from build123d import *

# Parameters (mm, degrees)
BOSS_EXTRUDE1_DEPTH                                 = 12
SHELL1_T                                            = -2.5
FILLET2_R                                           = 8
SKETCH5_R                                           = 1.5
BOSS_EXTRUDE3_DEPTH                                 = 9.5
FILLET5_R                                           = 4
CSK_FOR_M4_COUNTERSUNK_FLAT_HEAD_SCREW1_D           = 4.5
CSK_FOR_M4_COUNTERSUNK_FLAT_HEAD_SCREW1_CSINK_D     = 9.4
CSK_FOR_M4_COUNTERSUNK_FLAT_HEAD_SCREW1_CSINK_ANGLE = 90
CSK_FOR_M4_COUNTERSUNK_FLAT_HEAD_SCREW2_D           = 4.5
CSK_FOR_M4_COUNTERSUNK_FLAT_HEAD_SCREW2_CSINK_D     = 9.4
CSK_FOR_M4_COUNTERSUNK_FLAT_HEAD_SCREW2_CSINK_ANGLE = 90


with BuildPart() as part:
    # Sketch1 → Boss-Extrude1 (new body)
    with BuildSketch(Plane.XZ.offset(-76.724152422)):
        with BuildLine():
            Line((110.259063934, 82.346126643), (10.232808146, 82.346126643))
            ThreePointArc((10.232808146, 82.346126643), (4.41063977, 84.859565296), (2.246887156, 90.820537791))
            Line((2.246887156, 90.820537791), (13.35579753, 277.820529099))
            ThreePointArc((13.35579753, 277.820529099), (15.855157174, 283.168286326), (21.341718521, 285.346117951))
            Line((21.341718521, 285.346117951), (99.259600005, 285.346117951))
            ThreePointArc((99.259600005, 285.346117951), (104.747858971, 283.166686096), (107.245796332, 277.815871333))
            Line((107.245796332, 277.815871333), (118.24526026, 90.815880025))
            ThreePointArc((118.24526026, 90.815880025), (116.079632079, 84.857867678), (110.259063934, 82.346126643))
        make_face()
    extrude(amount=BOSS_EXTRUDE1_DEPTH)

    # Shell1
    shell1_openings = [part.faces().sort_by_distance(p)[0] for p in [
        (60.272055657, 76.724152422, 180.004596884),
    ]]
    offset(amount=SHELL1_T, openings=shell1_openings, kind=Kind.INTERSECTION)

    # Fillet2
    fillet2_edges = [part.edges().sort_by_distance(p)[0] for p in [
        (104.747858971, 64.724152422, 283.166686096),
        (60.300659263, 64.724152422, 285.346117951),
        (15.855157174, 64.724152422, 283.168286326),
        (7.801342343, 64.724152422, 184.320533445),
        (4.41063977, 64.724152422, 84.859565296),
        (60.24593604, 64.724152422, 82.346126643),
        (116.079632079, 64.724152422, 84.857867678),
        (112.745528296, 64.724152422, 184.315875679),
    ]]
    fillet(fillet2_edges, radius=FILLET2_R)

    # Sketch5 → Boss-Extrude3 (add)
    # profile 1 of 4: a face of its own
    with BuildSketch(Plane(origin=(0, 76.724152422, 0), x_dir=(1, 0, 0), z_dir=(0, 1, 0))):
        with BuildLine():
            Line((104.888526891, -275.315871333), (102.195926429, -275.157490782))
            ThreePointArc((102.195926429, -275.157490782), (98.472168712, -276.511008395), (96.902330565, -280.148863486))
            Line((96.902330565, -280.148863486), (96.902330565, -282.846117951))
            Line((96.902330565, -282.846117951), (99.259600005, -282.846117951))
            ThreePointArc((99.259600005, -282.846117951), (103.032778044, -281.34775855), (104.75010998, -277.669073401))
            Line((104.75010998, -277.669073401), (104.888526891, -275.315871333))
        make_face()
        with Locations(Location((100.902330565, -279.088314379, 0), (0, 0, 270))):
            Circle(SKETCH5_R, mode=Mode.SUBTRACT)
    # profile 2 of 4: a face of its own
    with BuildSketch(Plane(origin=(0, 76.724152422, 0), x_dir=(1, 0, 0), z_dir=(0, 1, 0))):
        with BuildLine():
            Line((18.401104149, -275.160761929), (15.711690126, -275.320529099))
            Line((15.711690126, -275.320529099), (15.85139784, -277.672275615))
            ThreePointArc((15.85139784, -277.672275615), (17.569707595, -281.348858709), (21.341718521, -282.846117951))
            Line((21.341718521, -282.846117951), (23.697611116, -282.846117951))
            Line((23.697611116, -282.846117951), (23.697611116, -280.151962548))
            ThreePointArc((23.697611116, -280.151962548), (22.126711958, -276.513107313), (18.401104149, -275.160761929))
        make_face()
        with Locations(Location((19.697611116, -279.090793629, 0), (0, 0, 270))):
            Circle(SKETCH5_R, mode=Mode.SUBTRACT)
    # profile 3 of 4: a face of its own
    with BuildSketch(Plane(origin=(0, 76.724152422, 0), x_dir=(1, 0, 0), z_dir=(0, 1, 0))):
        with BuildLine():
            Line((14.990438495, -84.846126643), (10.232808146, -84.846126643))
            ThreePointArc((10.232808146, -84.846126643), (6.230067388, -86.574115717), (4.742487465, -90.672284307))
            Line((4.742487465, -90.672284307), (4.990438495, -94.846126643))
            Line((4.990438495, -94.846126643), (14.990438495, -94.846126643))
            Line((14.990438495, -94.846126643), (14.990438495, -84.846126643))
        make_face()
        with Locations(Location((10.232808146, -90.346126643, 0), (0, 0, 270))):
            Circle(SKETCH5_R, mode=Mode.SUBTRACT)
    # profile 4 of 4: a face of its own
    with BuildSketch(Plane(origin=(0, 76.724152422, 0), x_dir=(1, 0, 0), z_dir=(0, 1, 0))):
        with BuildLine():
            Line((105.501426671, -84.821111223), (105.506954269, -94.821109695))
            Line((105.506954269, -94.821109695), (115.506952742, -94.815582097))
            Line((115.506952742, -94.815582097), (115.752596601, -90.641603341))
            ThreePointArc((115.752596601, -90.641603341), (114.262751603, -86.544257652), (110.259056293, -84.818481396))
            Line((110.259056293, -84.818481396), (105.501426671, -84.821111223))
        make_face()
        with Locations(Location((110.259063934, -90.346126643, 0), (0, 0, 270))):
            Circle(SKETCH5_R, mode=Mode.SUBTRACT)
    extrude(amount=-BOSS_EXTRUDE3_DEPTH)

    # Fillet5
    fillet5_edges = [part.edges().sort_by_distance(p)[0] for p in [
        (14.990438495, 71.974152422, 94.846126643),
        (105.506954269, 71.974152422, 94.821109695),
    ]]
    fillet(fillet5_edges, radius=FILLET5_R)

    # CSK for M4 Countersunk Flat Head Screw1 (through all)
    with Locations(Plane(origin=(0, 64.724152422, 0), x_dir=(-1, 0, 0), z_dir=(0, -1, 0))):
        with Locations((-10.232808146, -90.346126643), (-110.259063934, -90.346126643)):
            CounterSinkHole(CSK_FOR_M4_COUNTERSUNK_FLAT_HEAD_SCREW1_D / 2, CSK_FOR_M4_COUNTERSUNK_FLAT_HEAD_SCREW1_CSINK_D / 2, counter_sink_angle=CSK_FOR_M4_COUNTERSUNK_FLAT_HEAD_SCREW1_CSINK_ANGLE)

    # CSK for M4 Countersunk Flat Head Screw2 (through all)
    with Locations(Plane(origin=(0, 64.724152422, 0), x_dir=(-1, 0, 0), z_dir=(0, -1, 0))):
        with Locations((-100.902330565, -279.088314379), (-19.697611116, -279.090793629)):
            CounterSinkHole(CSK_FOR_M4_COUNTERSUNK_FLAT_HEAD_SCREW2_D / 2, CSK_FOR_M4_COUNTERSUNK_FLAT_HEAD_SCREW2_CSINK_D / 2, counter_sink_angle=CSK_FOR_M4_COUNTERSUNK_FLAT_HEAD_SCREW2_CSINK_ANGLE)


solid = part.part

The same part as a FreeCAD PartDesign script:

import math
import FreeCAD as App
import Part
import Sketcher
from FreeCAD import Vector
Q = App.Units.Quantity


def edges_at(feature, points):
    """Names of the edges that pass closest to the given points."""
    edges = feature.Shape.Edges
    near = lambda p: min(range(len(edges)), key=lambda i: edges[i].distToShape(Part.Vertex(*p))[0])
    return sorted({f"Edge{near(p) + 1}" for p in points})


def faces_at(feature, points):
    """Names of the faces that lie closest to the given points."""
    faces = feature.Shape.Faces
    near = lambda p: min(range(len(faces)), key=lambda i: faces[i].distToShape(Part.Vertex(*p))[0])
    return sorted({f"Face{near(p) + 1}" for p in points})

doc = App.newDocument("Part")
body = doc.addObject("PartDesign::Body", "Body")

# Sketch on XZ plane
sketch1 = body.newObject("Sketcher::SketchObject", "Sketch")
sketch1.AttachmentSupport = (doc.getObject("XZ_Plane"), [""])
sketch1.MapMode = "FlatFace"
sketch1.AttachmentOffset = App.Placement(Vector(0, 0, -76.724152), App.Rotation())
sketch1.addGeometry([
    Part.LineSegment(Vector(10, 82, 0), Vector(110, 82, 0)),  # 0
    Part.ArcOfCircle(Part.Circle(Vector(110, 90, 0), Vector(0, 0, 1), 8), math.radians(-90), math.radians(3)),  # 1
    Part.LineSegment(Vector(118, 91, 0), Vector(107, 278, 0)),  # 2
    Part.ArcOfCircle(Part.Circle(Vector(99, 277, 0), Vector(0, 0, 1), 8), math.radians(3), math.radians(90)),  # 3
    Part.LineSegment(Vector(99, 285, 0), Vector(21, 285, 0)),  # 4
    Part.ArcOfCircle(Part.Circle(Vector(21, 277, 0), Vector(0, 0, 1), 8), math.radians(90), math.radians(177)),  # 5
    Part.LineSegment(Vector(13, 278, 0), Vector(2, 91, 0)),  # 6
    Part.ArcOfCircle(Part.Circle(Vector(10, 90, 0), Vector(0, 0, 1), 8), math.radians(177), math.radians(270)),  # 7
], False)
sketch1.addConstraint([
    Sketcher.Constraint("Tangent", 0, 2, 1, 1),
    Sketcher.Constraint("Tangent", 1, 2, 2, 1),
    Sketcher.Constraint("Tangent", 2, 2, 3, 1),
    Sketcher.Constraint("Tangent", 3, 2, 4, 1),
    Sketcher.Constraint("Tangent", 4, 2, 5, 1),
    Sketcher.Constraint("Tangent", 5, 2, 6, 1),
    Sketcher.Constraint("Tangent", 6, 2, 7, 1),
    Sketcher.Constraint("Tangent", 7, 2, 0, 1),
    Sketcher.Constraint("Horizontal", 0),
    Sketcher.Constraint("Horizontal", 4),
    Sketcher.Constraint("Equal", 1, 3),
    Sketcher.Constraint("Equal", 3, 5),
    Sketcher.Constraint("Equal", 5, 7),
    Sketcher.Constraint("Radius", 1, Q("8 mm")),
    Sketcher.Constraint("DistanceX", 5, 2, 2, 2, Q("93.889999 mm")),
    Sketcher.Constraint("DistanceX", -1, 1, 3, 3, Q("99.2596 mm")),
    Sketcher.Constraint("Distance", 2, Q("187.32321 mm")),
    Sketcher.Constraint("Distance", 6, Q("187.329668 mm")),
    Sketcher.Constraint("DistanceX", 0, 1, 0, 2, Q("100.026256 mm")),
    Sketcher.Constraint("DistanceY", -1, 1, 1, 2, Q("90.81588 mm")),
])
pad1 = body.newObject("PartDesign::Pad", "Pad")
pad1.Profile = sketch1
pad1.Length = 12
doc.recompute()

thickness = body.newObject("PartDesign::Thickness", "Thickness")
thickness.Base = (pad1, faces_at(pad1, [(60.246, 76.724, 183.846)]))
thickness.Value = 2.5
thickness.Reversed = True
thickness.Join = "Intersection"
doc.recompute()

fillet = body.newObject("PartDesign::Fillet", "Fillet")
fillet.Base = (thickness, edges_at(thickness, [
    (104.748, 64.724, 283.167),
    (60.301, 64.724, 285.346),
    (15.855, 64.724, 283.168),
    (7.801, 64.724, 184.321),
    (4.411, 64.724, 84.86),
    (60.246, 64.724, 82.346),
    (116.08, 64.724, 84.858),
    (112.746, 64.724, 184.316),
]))
fillet.Radius = 8

# Sketch on XZ plane
sketch2 = body.newObject("Sketcher::SketchObject", "Sketch001")
sketch2.AttachmentSupport = (doc.getObject("XZ_Plane"), [""])
sketch2.MapMode = "FlatFace"
sketch2.AttachmentOffset = App.Placement(Vector(0, 0, -76.724152), App.Rotation())
sketch2.addGeometry([
    Part.LineSegment(Vector(104.9, 275.3, 0), Vector(102.2, 275.2, 0)),  # 0
    Part.ArcOfCircle(Part.Circle(Vector(101.9, 280.1, 0), Vector(0, 0, 1), 5), math.radians(180), math.radians(273)),  # 1
    Part.LineSegment(Vector(96.9, 280.1, 0), Vector(96.9, 282.8, 0)),  # 2
    Part.LineSegment(Vector(96.9, 282.8, 0), Vector(99.3, 282.8, 0)),  # 3
    Part.ArcOfCircle(Part.Circle(Vector(99.3, 277.3, 0), Vector(0, 0, 1), 5.5), math.radians(3), math.radians(90)),  # 4
    Part.LineSegment(Vector(104.8, 277.7, 0), Vector(104.9, 275.3, 0)),  # 5
    Part.Circle(Vector(100.9, 279.1, 0), Vector(0, 0, 1), 1.5),  # 6
    Part.LineSegment(Vector(18.4, 275.2, 0), Vector(15.7, 275.3, 0)),  # 7
    Part.LineSegment(Vector(15.7, 275.3, 0), Vector(15.9, 277.7, 0)),  # 8
    Part.ArcOfCircle(Part.Circle(Vector(21.3, 277.3, 0), Vector(0, 0, 1), 5.5), math.radians(90), math.radians(177)),  # 9
    Part.LineSegment(Vector(21.3, 282.8, 0), Vector(23.7, 282.8, 0)),  # 10
    Part.LineSegment(Vector(23.7, 282.8, 0), Vector(23.7, 280.2, 0)),  # 11
    Part.ArcOfCircle(Part.Circle(Vector(18.7, 280.2, 0), Vector(0, 0, 1), 5), math.radians(-93), math.radians(0)),  # 12
    Part.Circle(Vector(19.7, 279.1, 0), Vector(0, 0, 1), 1.5),  # 13
    Part.LineSegment(Vector(15, 84.8, 0), Vector(10.2, 84.8, 0)),  # 14
    Part.ArcOfCircle(Part.Circle(Vector(10.2, 90.3, 0), Vector(0, 0, 1), 5.5), math.radians(177), math.radians(270)),  # 15
    Part.LineSegment(Vector(4.7, 90.7, 0), Vector(5, 94.8, 0)),  # 16
    Part.LineSegment(Vector(5, 94.8, 0), Vector(15, 94.8, 0)),  # 17
    Part.LineSegment(Vector(15, 94.8, 0), Vector(15, 84.8, 0)),  # 18
    Part.Circle(Vector(10.2, 90.3, 0), Vector(0, 0, 1), 1.5),  # 19
    Part.LineSegment(Vector(105.5, 84.8, 0), Vector(105.5, 94.8, 0)),  # 20
    Part.LineSegment(Vector(105.5, 94.8, 0), Vector(115.5, 94.8, 0)),  # 21
    Part.LineSegment(Vector(115.5, 94.8, 0), Vector(115.8, 90.6, 0)),  # 22
    Part.ArcOfCircle(Part.Circle(Vector(110.3, 90.3, 0), Vector(0, 0, 1), 5.5), math.radians(-90), math.radians(3)),  # 23
    Part.LineSegment(Vector(110.3, 84.8, 0), Vector(105.5, 84.8, 0)),  # 24
    Part.Circle(Vector(110.3, 90.3, 0), Vector(0, 0, 1), 1.5),  # 25
], False)
sketch2.addConstraint([
    Sketcher.Constraint("Tangent", 0, 2, 1, 2),
    Sketcher.Constraint("Tangent", 1, 1, 2, 1),
    Sketcher.Constraint("Coincident", 2, 2, 3, 1),
    Sketcher.Constraint("Tangent", 3, 2, 4, 2),
    Sketcher.Constraint("Tangent", 4, 1, 5, 1),
    Sketcher.Constraint("Coincident", 5, 2, 0, 1),
    Sketcher.Constraint("Coincident", 7, 2, 8, 1),
    Sketcher.Constraint("Tangent", 8, 2, 9, 2),
    Sketcher.Constraint("Tangent", 9, 1, 10, 1),
    Sketcher.Constraint("Coincident", 10, 2, 11, 1),
    Sketcher.Constraint("Tangent", 11, 2, 12, 2),
    Sketcher.Constraint("Tangent", 12, 1, 7, 1),
    Sketcher.Constraint("Tangent", 14, 2, 15, 2),
    Sketcher.Constraint("Tangent", 15, 1, 16, 1),
    Sketcher.Constraint("Coincident", 16, 2, 17, 1),
    Sketcher.Constraint("Coincident", 17, 2, 18, 1),
    Sketcher.Constraint("Coincident", 18, 2, 14, 1),
    Sketcher.Constraint("Coincident", 20, 2, 21, 1),
    Sketcher.Constraint("Coincident", 21, 2, 22, 1),
    Sketcher.Constraint("Tangent", 22, 2, 23, 2),
    Sketcher.Constraint("Tangent", 23, 1, 24, 1),
    Sketcher.Constraint("Coincident", 24, 2, 20, 1),
    Sketcher.Constraint("Vertical", 2),
    Sketcher.Constraint("Horizontal", 3),
    Sketcher.Constraint("Horizontal", 10),
    Sketcher.Constraint("Vertical", 11),
    Sketcher.Constraint("Horizontal", 14),
    Sketcher.Constraint("Horizontal", 17),
    Sketcher.Constraint("Vertical", 18),
    Sketcher.Constraint("Coincident", 19, 3, 15, 3),
    Sketcher.Constraint("Equal", 4, 9),
    Sketcher.Constraint("Equal", 1, 12),
    Sketcher.Constraint("Equal", 6, 13),
    Sketcher.Constraint("Equal", 9, 15),
    Sketcher.Constraint("Equal", 13, 19),
    Sketcher.Constraint("Equal", 15, 23),
    Sketcher.Constraint("Equal", 19, 25),
    Sketcher.Constraint("Perpendicular", 0, 5),
    Sketcher.Constraint("Perpendicular", 7, 8),
    Sketcher.Constraint("Parallel", 8, 16),
    Sketcher.Constraint("Perpendicular", 20, 21),
    Sketcher.Constraint("Parallel", 21, 24),
    Sketcher.Constraint("Horizontal", 4, 3, 9, 3),
    Sketcher.Constraint("Horizontal", 19, 3, 25, 3),
    Sketcher.Constraint("Equal", 17, 18),
    Sketcher.Constraint("Equal", 20, 21),
    Sketcher.Constraint("Equal", 16, 22),
    Sketcher.Constraint("Diameter", 6, Q("3 mm")),
    Sketcher.Constraint("Radius", 1, Q("5 mm")),
    Sketcher.Constraint("Radius", 4, Q("5.5 mm")),
    Sketcher.Constraint("DistanceX", 17, 1, 17, 2, Q("10 mm")),
    Sketcher.Constraint("Distance", 20, Q("10 mm")),
    Sketcher.Constraint("DistanceX", 6, 3, 1, 3, Q("1 mm")),
    Sketcher.Constraint("DistanceX", 12, 3, 13, 3, Q("1 mm")),
    Sketcher.Constraint("Distance", 16, Q("4.181201 mm")),
    Sketcher.Constraint("DistanceX", 3, 1, 3, 2, Q("2.357269 mm")),
    Sketcher.Constraint("DistanceX", -1, 1, 4, 3, Q("99.2596 mm")),
    Sketcher.Constraint("DistanceY", 1, 3, 12, 3, Q("0.003099 mm")),
    Sketcher.Constraint("DistanceX", 0, 2, 5, 2, Q("2.6926 mm")),
    Sketcher.Constraint("DistanceY", 23, 3, 21, 2, Q("4.497102 mm")),
    Sketcher.Constraint("Distance", 5, Q("2.357269 mm")),
    Sketcher.Constraint("DistanceX", 10, 1, 10, 2, Q("2.355893 mm")),
    Sketcher.Constraint("DistanceX", -1, 1, 9, 3, Q("21.341719 mm")),
    Sketcher.Constraint("DistanceX", -1, 1, 15, 3, Q("10.232808 mm")),
    Sketcher.Constraint("DistanceY", -1, 1, 23, 3, Q("90.318481 mm")),
    Sketcher.Constraint("DistanceY", -1, 1, 0, 2, Q("275.157491 mm")),
    Sketcher.Constraint("DistanceY", 6, 3, 1, 3, Q("1.060549 mm")),
    Sketcher.Constraint("DistanceY", 13, 3, 12, 3, Q("1.061169 mm")),
    Sketcher.Constraint("DistanceY", 15, 3, 9, 3, Q("186.999991 mm")),
    Sketcher.Constraint("DistanceX", 15, 3, 23, 3, Q("100.029288 mm")),
    Sketcher.Constraint("DistanceX", 20, 2, 25, 3, Q("4.75211 mm")),
])
pad2 = body.newObject("PartDesign::Pad", "Pad001")
pad2.Profile = sketch2
pad2.Length = 9.5
doc.recompute()

fillet2 = body.newObject("PartDesign::Fillet", "Fillet001")
fillet2.Base = (pad2, edges_at(pad2, [(14.99, 71.974, 94.846), (105.507, 71.974, 94.821)]))
fillet2.Radius = 4

# Sketch on XZ plane
sketch3 = body.newObject("Sketcher::SketchObject", "Sketch002")
sketch3.AttachmentSupport = (doc.getObject("XZ_Plane"), [""])
sketch3.MapMode = "FlatFace"
sketch3.AttachmentOffset = App.Placement(Vector(0, 0, -64.724152), App.Rotation())
sketch3.addGeometry([
    Part.Circle(Vector(10.2, 90.3, 0), Vector(0, 0, 1), 2.2),
    Part.Circle(Vector(110.3, 90.3, 0), Vector(0, 0, 1), 2.2),
], False)
sketch3.addConstraint([
    Sketcher.Constraint("Equal", 0, 1),
    Sketcher.Constraint("Horizontal", 0, 3, 1, 3),
    Sketcher.Constraint("Diameter", 0, Q("4.5 mm")),
    Sketcher.Constraint("DistanceX", -1, 1, 0, 3, Q("10.232808 mm")),
    Sketcher.Constraint("DistanceY", -1, 1, 0, 3, Q("90.346127 mm")),
    Sketcher.Constraint("DistanceX", -1, 1, 1, 3, Q("110.259064 mm")),
])
doc.recompute()
hole = body.newObject("PartDesign::Hole", "Hole")
hole.Profile = sketch3
hole.ThreadType = "None"
hole.Diameter = 4.5
hole.DepthType = "ThroughAll"
hole.HoleCutType = "Countersink"
hole.HoleCutDiameter = 9.4
hole.HoleCutCountersinkAngle = 90

# Sketch on XZ plane
sketch4 = body.newObject("Sketcher::SketchObject", "Sketch003")
sketch4.AttachmentSupport = (doc.getObject("XZ_Plane"), [""])
sketch4.MapMode = "FlatFace"
sketch4.AttachmentOffset = App.Placement(Vector(0, 0, -64.724152), App.Rotation())
sketch4.addGeometry([
    Part.Circle(Vector(100.9, 279.1, 0), Vector(0, 0, 1), 2.2),
    Part.Circle(Vector(19.7, 279.1, 0), Vector(0, 0, 1), 2.2),
], False)
sketch4.addConstraint([
    Sketcher.Constraint("Equal", 0, 1),
    Sketcher.Constraint("Diameter", 0, Q("4.5 mm")),
    Sketcher.Constraint("DistanceX", -1, 1, 0, 3, Q("100.902331 mm")),
    Sketcher.Constraint("DistanceX", -1, 1, 1, 3, Q("19.697611 mm")),
    Sketcher.Constraint("DistanceY", 0, 3, 1, 3, Q("0.002479 mm")),
    Sketcher.Constraint("DistanceY", -1, 1, 0, 3, Q("279.088314 mm")),
])
doc.recompute()
hole2 = body.newObject("PartDesign::Hole", "Hole001")
hole2.Profile = sketch4
hole2.ThreadType = "None"
hole2.Diameter = 4.5
hole2.DepthType = "ThroughAll"
hole2.HoleCutType = "Countersink"
hole2.HoleCutDiameter = 9.4
hole2.HoleCutCountersinkAngle = 90

doc.recompute()
